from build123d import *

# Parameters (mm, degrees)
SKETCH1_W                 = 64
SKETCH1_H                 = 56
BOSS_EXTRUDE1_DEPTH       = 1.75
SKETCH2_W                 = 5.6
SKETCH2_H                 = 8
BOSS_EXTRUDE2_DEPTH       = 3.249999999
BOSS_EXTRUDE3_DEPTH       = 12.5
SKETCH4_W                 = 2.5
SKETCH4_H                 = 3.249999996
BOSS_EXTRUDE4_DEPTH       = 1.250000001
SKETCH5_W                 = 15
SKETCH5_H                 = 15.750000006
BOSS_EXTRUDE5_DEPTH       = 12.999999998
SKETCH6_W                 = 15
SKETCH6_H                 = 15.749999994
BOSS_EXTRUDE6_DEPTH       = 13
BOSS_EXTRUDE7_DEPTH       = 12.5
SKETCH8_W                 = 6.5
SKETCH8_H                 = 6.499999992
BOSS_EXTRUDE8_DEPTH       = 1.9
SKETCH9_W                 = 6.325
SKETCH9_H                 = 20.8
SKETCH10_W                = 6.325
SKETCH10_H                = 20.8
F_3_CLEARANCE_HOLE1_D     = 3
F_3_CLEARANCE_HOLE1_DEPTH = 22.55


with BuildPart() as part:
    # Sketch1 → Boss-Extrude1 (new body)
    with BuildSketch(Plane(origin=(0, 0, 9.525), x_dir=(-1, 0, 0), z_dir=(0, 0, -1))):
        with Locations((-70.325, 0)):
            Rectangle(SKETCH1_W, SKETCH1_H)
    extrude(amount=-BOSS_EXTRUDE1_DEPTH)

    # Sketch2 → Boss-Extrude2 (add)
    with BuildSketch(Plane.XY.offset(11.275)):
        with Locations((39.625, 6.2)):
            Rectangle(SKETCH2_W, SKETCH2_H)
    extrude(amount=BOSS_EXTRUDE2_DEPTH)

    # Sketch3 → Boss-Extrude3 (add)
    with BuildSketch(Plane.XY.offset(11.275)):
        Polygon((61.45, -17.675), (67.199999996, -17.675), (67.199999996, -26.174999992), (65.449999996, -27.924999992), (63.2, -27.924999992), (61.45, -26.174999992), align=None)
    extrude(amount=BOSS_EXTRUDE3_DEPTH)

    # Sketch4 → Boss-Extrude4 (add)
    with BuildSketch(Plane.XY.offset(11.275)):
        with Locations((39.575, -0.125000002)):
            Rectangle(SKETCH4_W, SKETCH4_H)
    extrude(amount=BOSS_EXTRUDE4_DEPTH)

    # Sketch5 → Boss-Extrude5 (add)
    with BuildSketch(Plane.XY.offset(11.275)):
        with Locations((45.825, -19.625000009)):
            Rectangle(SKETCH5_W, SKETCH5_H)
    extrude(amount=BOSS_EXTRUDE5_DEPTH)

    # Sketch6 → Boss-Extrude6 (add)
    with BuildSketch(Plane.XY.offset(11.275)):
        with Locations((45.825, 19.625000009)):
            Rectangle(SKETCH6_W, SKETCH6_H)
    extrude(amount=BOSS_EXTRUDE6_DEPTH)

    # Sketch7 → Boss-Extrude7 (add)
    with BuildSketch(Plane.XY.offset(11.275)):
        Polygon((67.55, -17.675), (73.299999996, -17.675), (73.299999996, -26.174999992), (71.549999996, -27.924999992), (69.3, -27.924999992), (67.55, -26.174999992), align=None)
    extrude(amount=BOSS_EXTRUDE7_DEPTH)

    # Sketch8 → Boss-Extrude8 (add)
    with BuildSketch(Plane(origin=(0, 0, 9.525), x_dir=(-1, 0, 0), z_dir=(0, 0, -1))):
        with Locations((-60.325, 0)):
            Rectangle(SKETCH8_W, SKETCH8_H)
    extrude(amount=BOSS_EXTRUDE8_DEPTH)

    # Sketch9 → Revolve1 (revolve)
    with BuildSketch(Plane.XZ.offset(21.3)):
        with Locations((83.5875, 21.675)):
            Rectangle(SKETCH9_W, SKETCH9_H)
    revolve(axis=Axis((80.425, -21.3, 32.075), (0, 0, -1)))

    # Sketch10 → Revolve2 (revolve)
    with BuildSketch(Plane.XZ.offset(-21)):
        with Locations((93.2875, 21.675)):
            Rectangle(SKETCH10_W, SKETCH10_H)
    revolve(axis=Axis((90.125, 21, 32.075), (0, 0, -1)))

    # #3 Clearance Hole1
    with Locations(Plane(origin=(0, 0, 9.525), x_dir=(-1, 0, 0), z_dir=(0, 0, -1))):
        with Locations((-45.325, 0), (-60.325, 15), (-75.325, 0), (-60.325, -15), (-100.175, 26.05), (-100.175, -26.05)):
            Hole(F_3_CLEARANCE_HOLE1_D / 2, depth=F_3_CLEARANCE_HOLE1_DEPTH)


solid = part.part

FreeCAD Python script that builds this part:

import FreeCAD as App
import Part
import Sketcher

V = App.Vector
Q = App.Units.Quantity

doc = App.newDocument("Part")
body = doc.addObject("PartDesign::Body", "Body")

# Sketch on XY plane
sketch1 = body.newObject("Sketcher::SketchObject", "Sketch")
sketch1.AttachmentSupport = (doc.getObject("XY_Plane"), [""])
sketch1.MapMode = "FlatFace"
sketch1.AttachmentOffset = App.Placement(V(0, 0, 9.525), App.Rotation())
sketch1.addGeometry(Part.LineSegment(V(102, 28, 0), V(102, -28, 0)), False)
sketch1.addGeometry(Part.LineSegment(V(102, -28, 0), V(38, -28, 0)), False)
sketch1.addGeometry(Part.LineSegment(V(38, -28, 0), V(38, 28, 0)), False)
sketch1.addGeometry(Part.LineSegment(V(38, 28, 0), V(102, 28, 0)), False)
sketch1.addConstraint(Sketcher.Constraint("Coincident", 0, 2, 1, 1))
sketch1.addConstraint(Sketcher.Constraint("Coincident", 1, 2, 2, 1))
sketch1.addConstraint(Sketcher.Constraint("Coincident", 2, 2, 3, 1))
sketch1.addConstraint(Sketcher.Constraint("Coincident", 3, 2, 0, 1))
sketch1.addConstraint(Sketcher.Constraint("Vertical", 0))
sketch1.addConstraint(Sketcher.Constraint("Horizontal", 1))
sketch1.addConstraint(Sketcher.Constraint("Vertical", 2))
sketch1.addConstraint(Sketcher.Constraint("Horizontal", 3))
sketch1.addConstraint(Sketcher.Constraint("DistanceX", 1, 2, 1, 1, Q("64 mm")))
sketch1.addConstraint(Sketcher.Constraint("DistanceY", 0, 2, 0, 1, Q("56 mm")))
sketch1.addConstraint(Sketcher.Constraint("DistanceY", 0, 2, -1, 1, Q("28 mm")))
sketch1.addConstraint(Sketcher.Constraint("DistanceX", -1, 1, 0, 2, Q("102.325 mm")))
pad1 = body.newObject("PartDesign::Pad", "Pad")
pad1.Profile = sketch1
pad1.Length = 1.75

# Sketch on XY plane
sketch2 = body.newObject("Sketcher::SketchObject", "Sketch001")
sketch2.AttachmentSupport = (doc.getObject("XY_Plane"), [""])
sketch2.MapMode = "FlatFace"
sketch2.AttachmentOffset = App.Placement(V(0, 0, 11.275), App.Rotation())
sketch2.addGeometry(Part.LineSegment(V(37, 10, 0), V(37, 2, 0)), False)
sketch2.addGeometry(Part.LineSegment(V(37, 2, 0), V(42, 2, 0)), False)
sketch2.addGeometry(Part.LineSegment(V(42, 2, 0), V(42, 10, 0)), False)
sketch2.addGeometry(Part.LineSegment(V(42, 10, 0), V(37, 10, 0)), False)
sketch2.addConstraint(Sketcher.Constraint("Coincident", 0, 2, 1, 1))
sketch2.addConstraint(Sketcher.Constraint("Coincident", 1, 2, 2, 1))
sketch2.addConstraint(Sketcher.Constraint("Coincident", 2, 2, 3, 1))
sketch2.addConstraint(Sketcher.Constraint("Coincident", 3, 2, 0, 1))
sketch2.addConstraint(Sketcher.Constraint("Vertical", 0))
sketch2.addConstraint(Sketcher.Constraint("Horizontal", 1))
sketch2.addConstraint(Sketcher.Constraint("Vertical", 2))
sketch2.addConstraint(Sketcher.Constraint("Horizontal", 3))
sketch2.addConstraint(Sketcher.Constraint("DistanceY", 0, 2, 0, 1, Q("8 mm")))
sketch2.addConstraint(Sketcher.Constraint("DistanceX", 1, 1, 1, 2, Q("5.6 mm")))
sketch2.addConstraint(Sketcher.Constraint("DistanceY", -1, 1, 0, 2, Q("2.2 mm")))
sketch2.addConstraint(Sketcher.Constraint("DistanceX", -1, 1, 0, 2, Q("36.825 mm")))
pad2 = body.newObject("PartDesign::Pad", "Pad001")
pad2.Profile = sketch2
pad2.Length = 3.25

# Sketch on XY plane
sketch3 = body.newObject("Sketcher::SketchObject", "Sketch002")
sketch3.AttachmentSupport = (doc.getObject("XY_Plane"), [""])
sketch3.MapMode = "FlatFace"
sketch3.AttachmentOffset = App.Placement(V(0, 0, 11.275), App.Rotation())
sketch3.addGeometry(Part.LineSegment(V(67.2, -17.7, 0), V(61.5, -17.7, 0)), False)
sketch3.addGeometry(Part.LineSegment(V(61.5, -17.7, 0), V(61.5, -26.2, 0)), False)
sketch3.addGeometry(Part.LineSegment(V(61.5, -26.2, 0), V(63.2, -27.9, 0)), False)
sketch3.addGeometry(Part.LineSegment(V(63.2, -27.9, 0), V(65.4, -27.9, 0)), False)
sketch3.addGeometry(Part.LineSegment(V(65.4, -27.9, 0), V(67.2, -26.2, 0)), False)
sketch3.addGeometry(Part.LineSegment(V(67.2, -26.2, 0), V(67.2, -17.7, 0)), False)
sketch3.addConstraint(Sketcher.Constraint("Coincident", 0, 2, 1, 1))
sketch3.addConstraint(Sketcher.Constraint("Coincident", 1, 2, 2, 1))
sketch3.addConstraint(Sketcher.Constraint("Coincident", 2, 2, 3, 1))
sketch3.addConstraint(Sketcher.Constraint("Coincident", 3, 2, 4, 1))
sketch3.addConstraint(Sketcher.Constraint("Coincident", 4, 2, 5, 1))
sketch3.addConstraint(Sketcher.Constraint("Coincident", 5, 2, 0, 1))
sketch3.addConstraint(Sketcher.Constraint("Horizontal", 0))
sketch3.addConstraint(Sketcher.Constraint("Vertical", 1))
sketch3.addConstraint(Sketcher.Constraint("Horizontal", 3))
sketch3.addConstraint(Sketcher.Constraint("Vertical", 5))
sketch3.addConstraint(Sketcher.Constraint("Perpendicular", 2, 4))
sketch3.addConstraint(Sketcher.Constraint("Horizontal", 1, 2, 4, 2))
sketch3.addConstraint(Sketcher.Constraint("Equal", 2, 4))
sketch3.addConstraint(Sketcher.Constraint("DistanceY", 1, 2, 1, 1, Q("8.5 mm")))
sketch3.addConstraint(Sketcher.Constraint("DistanceX", 1, 2, 3, 2, Q("4 mm")))
sketch3.addConstraint(Sketcher.Constraint("DistanceX", 0, 2, 0, 1, Q("5.75 mm")))
sketch3.addConstraint(Sketcher.Constraint("DistanceX", -1, 1, 2, 2, Q("63.2 mm")))
sketch3.addConstraint(Sketcher.Constraint("DistanceY", 0, 2, -1, 1, Q("17.675 mm")))
pad3 = body.newObject("PartDesign::Pad", "Pad002")
pad3.Profile = sketch3
pad3.Length = 12.5

# Sketch on XY plane
sketch4 = body.newObject("Sketcher::SketchObject", "Sketch003")
sketch4.AttachmentSupport = (doc.getObject("XY_Plane"), [""])
sketch4.MapMode = "FlatFace"
sketch4.AttachmentOffset = App.Placement(V(0, 0, 11.275), App.Rotation())
sketch4.addGeometry(Part.LineSegment(V(38.3, 1.5, 0), V(38.3, -1.8, 0)), False)
sketch4.addGeometry(Part.LineSegment(V(38.3, -1.8, 0), V(40.8, -1.8, 0)), False)
sketch4.addGeometry(Part.LineSegment(V(40.8, -1.8, 0), V(40.8, 1.5, 0)), False)
sketch4.addGeometry(Part.LineSegment(V(40.8, 1.5, 0), V(38.3, 1.5, 0)), False)
sketch4.addConstraint(Sketcher.Constraint("Coincident", 0, 2, 1, 1))
sketch4.addConstraint(Sketcher.Constraint("Coincident", 1, 2, 2, 1))
sketch4.addConstraint(Sketcher.Constraint("Coincident", 2, 2, 3, 1))
sketch4.addConstraint(Sketcher.Constraint("Coincident", 3, 2, 0, 1))
sketch4.addConstraint(Sketcher.Constraint("Vertical", 0))
sketch4.addConstraint(Sketcher.Constraint("Horizontal", 1))
sketch4.addConstraint(Sketcher.Constraint("Vertical", 2))
sketch4.addConstraint(Sketcher.Constraint("Horizontal", 3))
sketch4.addConstraint(Sketcher.Constraint("DistanceX", 1, 1, 1, 2, Q("2.5 mm")))
sketch4.addConstraint(Sketcher.Constraint("DistanceY", 0, 2, 0, 1, Q("3.25 mm")))
sketch4.addConstraint(Sketcher.Constraint("DistanceY", -1, 1, 2, 2, Q("1.5 mm")))
sketch4.addConstraint(Sketcher.Constraint("DistanceX", -1, 1, 0, 2, Q("38.325 mm")))
pad4 = body.newObject("PartDesign::Pad", "Pad003")
pad4.Profile = sketch4
pad4.Length = 1.25

# Sketch on XY plane
sketch5 = body.newObject("Sketcher::SketchObject", "Sketch004")
sketch5.AttachmentSupport = (doc.getObject("XY_Plane"), [""])
sketch5.MapMode = "FlatFace"
sketch5.AttachmentOffset = App.Placement(V(0, 0, 11.275), App.Rotation())
sketch5.addGeometry(Part.LineSegment(V(38, -12, 0), V(38, -28, 0)), False)
sketch5.addGeometry(Part.LineSegment(V(38, -28, 0), V(53, -28, 0)), False)
sketch5.addGeometry(Part.LineSegment(V(53, -28, 0), V(53, -12, 0)), False)
sketch5.addGeometry(Part.LineSegment(V(53, -12, 0), V(38, -12, 0)), False)
sketch5.addConstraint(Sketcher.Constraint("Coincident", 0, 2, 1, 1))
sketch5.addConstraint(Sketcher.Constraint("Coincident", 1, 2, 2, 1))
sketch5.addConstraint(Sketcher.Constraint("Coincident", 2, 2, 3, 1))
sketch5.addConstraint(Sketcher.Constraint("Coincident", 3, 2, 0, 1))
sketch5.addConstraint(Sketcher.Constraint("Vertical", 0))
sketch5.addConstraint(Sketcher.Constraint("Horizontal", 1))
sketch5.addConstraint(Sketcher.Constraint("Vertical", 2))
sketch5.addConstraint(Sketcher.Constraint("Horizontal", 3))
sketch5.addConstraint(Sketcher.Constraint("DistanceX", 1, 1, 1, 2, Q("15 mm")))
sketch5.addConstraint(Sketcher.Constraint("DistanceY", 0, 2, 0, 1, Q("15.75 mm")))
sketch5.addConstraint(Sketcher.Constraint("DistanceY", 0, 2, -1, 1, Q("27.5 mm")))
sketch5.addConstraint(Sketcher.Constraint("DistanceX", -1, 1, 0, 2, Q("38.325 mm")))
pad5 = body.newObject("PartDesign::Pad", "Pad004")
pad5.Profile = sketch5
pad5.Length = 13

# Sketch on XY plane
sketch6 = body.newObject("Sketcher::SketchObject", "Sketch005")
sketch6.AttachmentSupport = (doc.getObject("XY_Plane"), [""])
sketch6.MapMode = "FlatFace"
sketch6.AttachmentOffset = App.Placement(V(0, 0, 11.275), App.Rotation())
sketch6.addGeometry(Part.LineSegment(V(38, 28, 0), V(38, 12, 0)), False)
sketch6.addGeometry(Part.LineSegment(V(38, 12, 0), V(53, 12, 0)), False)
sketch6.addGeometry(Part.LineSegment(V(53, 12, 0), V(53, 28, 0)), False)
sketch6.addGeometry(Part.LineSegment(V(53, 28, 0), V(38, 28, 0)), False)
sketch6.addConstraint(Sketcher.Constraint("Coincident", 0, 2, 1, 1))
sketch6.addConstraint(Sketcher.Constraint("Coincident", 1, 2, 2, 1))
sketch6.addConstraint(Sketcher.Constraint("Coincident", 2, 2, 3, 1))
sketch6.addConstraint(Sketcher.Constraint("Coincident", 3, 2, 0, 1))
sketch6.addConstraint(Sketcher.Constraint("Vertical", 0))
sketch6.addConstraint(Sketcher.Constraint("Horizontal", 1))
sketch6.addConstraint(Sketcher.Constraint("Vertical", 2))
sketch6.addConstraint(Sketcher.Constraint("Horizontal", 3))
sketch6.addConstraint(Sketcher.Constraint("DistanceX", 1, 1, 1, 2, Q("15 mm")))
sketch6.addConstraint(Sketcher.Constraint("DistanceY", 0, 2, 0, 1, Q("15.75 mm")))
sketch6.addConstraint(Sketcher.Constraint("DistanceY", -1, 1, 2, 2, Q("27.5 mm")))
sketch6.addConstraint(Sketcher.Constraint("DistanceX", -1, 1, 0, 2, Q("38.325 mm")))
pad6 = body.newObject("PartDesign::Pad", "Pad005")
pad6.Profile = sketch6
pad6.Length = 13

# Sketch on XY plane
sketch7 = body.newObject("Sketcher::SketchObject", "Sketch006")
sketch7.AttachmentSupport = (doc.getObject("XY_Plane"), [""])
sketch7.MapMode = "FlatFace"
sketch7.AttachmentOffset = App.Placement(V(0, 0, 11.275), App.Rotation())
sketch7.addGeometry(Part.LineSegment(V(73.3, -17.7, 0), V(67.5, -17.7, 0)), False)
sketch7.addGeometry(Part.LineSegment(V(67.5, -17.7, 0), V(67.5, -26.2, 0)), False)
sketch7.addGeometry(Part.LineSegment(V(67.5, -26.2, 0), V(69.3, -27.9, 0)), False)
sketch7.addGeometry(Part.LineSegment(V(69.3, -27.9, 0), V(71.5, -27.9, 0)), False)
sketch7.addGeometry(Part.LineSegment(V(71.5, -27.9, 0), V(73.3, -26.2, 0)), False)
sketch7.addGeometry(Part.LineSegment(V(73.3, -26.2, 0), V(73.3, -17.7, 0)), False)
sketch7.addConstraint(Sketcher.Constraint("Coincident", 0, 2, 1, 1))
sketch7.addConstraint(Sketcher.Constraint("Coincident", 1, 2, 2, 1))
sketch7.addConstraint(Sketcher.Constraint("Coincident", 2, 2, 3, 1))
sketch7.addConstraint(Sketcher.Constraint("Coincident", 3, 2, 4, 1))
sketch7.addConstraint(Sketcher.Constraint("Coincident", 4, 2, 5, 1))
sketch7.addConstraint(Sketcher.Constraint("Coincident", 5, 2, 0, 1))
sketch7.addConstraint(Sketcher.Constraint("Horizontal", 0))
sketch7.addConstraint(Sketcher.Constraint("Vertical", 1))
sketch7.addConstraint(Sketcher.Constraint("Horizontal", 3))
sketch7.addConstraint(Sketcher.Constraint("Vertical", 5))
sketch7.addConstraint(Sketcher.Constraint("Perpendicular", 2, 4))
sketch7.addConstraint(Sketcher.Constraint("Horizontal", 1, 2, 4, 2))
sketch7.addConstraint(Sketcher.Constraint("Equal", 2, 4))
sketch7.addConstraint(Sketcher.Constraint("DistanceY", 1, 2, 1, 1, Q("8.5 mm")))
sketch7.addConstraint(Sketcher.Constraint("DistanceX", 1, 2, 3, 2, Q("4 mm")))
sketch7.addConstraint(Sketcher.Constraint("DistanceX", 0, 2, 0, 1, Q("5.75 mm")))
sketch7.addConstraint(Sketcher.Constraint("DistanceX", -1, 1, 2, 2, Q("69.3 mm")))
sketch7.addConstraint(Sketcher.Constraint("DistanceY", 0, 2, -1, 1, Q("17.675 mm")))
pad7 = body.newObject("PartDesign::Pad", "Pad006")
pad7.Profile = sketch7
pad7.Length = 12.5

# Sketch on XY plane
sketch8 = body.newObject("Sketcher::SketchObject", "Sketch007")
sketch8.AttachmentSupport = (doc.getObject("XY_Plane"), [""])
sketch8.MapMode = "FlatFace"
sketch8.AttachmentOffset = App.Placement(V(0, 0, 9.525), App.Rotation())
sketch8.addGeometry(Part.LineSegment(V(64, 3, 0), V(64, -3, 0)), False)
sketch8.addGeometry(Part.LineSegment(V(64, -3, 0), V(57, -3, 0)), False)
sketch8.addGeometry(Part.LineSegment(V(57, -3, 0), V(57, 3, 0)), False)
sketch8.addGeometry(Part.LineSegment(V(57, 3, 0), V(64, 3, 0)), False)
sketch8.addConstraint(Sketcher.Constraint("Coincident", 0, 2, 1, 1))
sketch8.addConstraint(Sketcher.Constraint("Coincident", 1, 2, 2, 1))
sketch8.addConstraint(Sketcher.Constraint("Coincident", 2, 2, 3, 1))
sketch8.addConstraint(Sketcher.Constraint("Coincident", 3, 2, 0, 1))
sketch8.addConstraint(Sketcher.Constraint("Vertical", 0))
sketch8.addConstraint(Sketcher.Constraint("Horizontal", 1))
sketch8.addConstraint(Sketcher.Constraint("Vertical", 2))
sketch8.addConstraint(Sketcher.Constraint("Horizontal", 3))
sketch8.addConstraint(Sketcher.Constraint("Equal", 3, 0))
sketch8.addConstraint(Sketcher.Constraint("DistanceX", 1, 2, 1, 1, Q("6.5 mm")))
sketch8.addConstraint(Sketcher.Constraint("DistanceY", 0, 2, -1, 1, Q("3.25 mm")))
sketch8.addConstraint(Sketcher.Constraint("DistanceX", -1, 1, 0, 2, Q("63.575 mm")))
pad8 = body.newObject("PartDesign::Pad", "Pad007")
pad8.Profile = sketch8
pad8.Length = 1.9
pad8.Reversed = True

# Sketch on XZ plane
sketch9 = body.newObject("Sketcher::SketchObject", "Sketch008")
sketch9.AttachmentSupport = (doc.getObject("XZ_Plane"), [""])
sketch9.MapMode = "FlatFace"
sketch9.AttachmentOffset = App.Placement(V(0, 0, 21.3), App.Rotation())
sketch9.addGeometry(Part.LineSegment(V(80, 32, 0), V(80, 11, 0)), False)
sketch9.addGeometry(Part.LineSegment(V(80, 11, 0), V(87, 11, 0)), False)
sketch9.addGeometry(Part.LineSegment(V(87, 11, 0), V(87, 32, 0)), False)
sketch9.addGeometry(Part.LineSegment(V(87, 32, 0), V(80, 32, 0)), False)
sketch9.addGeometry(Part.LineSegment(V(80, 32, 0), V(80, 11, 0)), True)  # axis
sketch9.addConstraint(Sketcher.Constraint("Coincident", 0, 2, 1, 1))
sketch9.addConstraint(Sketcher.Constraint("Coincident", 1, 2, 2, 1))
sketch9.addConstraint(Sketcher.Constraint("Coincident", 2, 2, 3, 1))
sketch9.addConstraint(Sketcher.Constraint("Coincident", 3, 2, 0, 1))
sketch9.addConstraint(Sketcher.Constraint("Vertical", 0))
sketch9.addConstraint(Sketcher.Constraint("Horizontal", 1))
sketch9.addConstraint(Sketcher.Constraint("Vertical", 2))
sketch9.addConstraint(Sketcher.Constraint("Horizontal", 3))
sketch9.addConstraint(Sketcher.Constraint("Vertical", 4))
sketch9.addConstraint(Sketcher.Constraint("Coincident", 4, 1, 3, 2))
sketch9.addConstraint(Sketcher.Constraint("Horizontal", 1, 2, 4, 2))
sketch9.addConstraint(Sketcher.Constraint("DistanceY", 0, 2, 0, 1, Q("20.8 mm")))
sketch9.addConstraint(Sketcher.Constraint("DistanceX", 1, 1, 1, 2, Q("6.325 mm")))
sketch9.addConstraint(Sketcher.Constraint("DistanceX", -1, 1, 1, 2, Q("86.75 mm")))
sketch9.addConstraint(Sketcher.Constraint("DistanceY", -1, 1, 0, 2, Q("11.275 mm")))
revolution = body.newObject("PartDesign::Revolution", "Revolution")
revolution.Profile = sketch9
revolution.ReferenceAxis = (sketch9, ["Axis0"])
revolution.Angle = 360

# Sketch on XZ plane
sketch10 = body.newObject("Sketcher::SketchObject", "Sketch009")
sketch10.AttachmentSupport = (doc.getObject("XZ_Plane"), [""])
sketch10.MapMode = "FlatFace"
sketch10.AttachmentOffset = App.Placement(V(0, 0, -21), App.Rotation())
sketch10.addGeometry(Part.LineSegment(V(90, 32, 0), V(90, 11, 0)), False)
sketch10.addGeometry(Part.LineSegment(V(90, 11, 0), V(96, 11, 0)), False)
sketch10.addGeometry(Part.LineSegment(V(96, 11, 0), V(96, 32, 0)), False)
sketch10.addGeometry(Part.LineSegment(V(96, 32, 0), V(90, 32, 0)), False)
sketch10.addGeometry(Part.LineSegment(V(90, 32, 0), V(90, 11, 0)), True)  # axis
sketch10.addConstraint(Sketcher.Constraint("Coincident", 0, 2, 1, 1))
sketch10.addConstraint(Sketcher.Constraint("Coincident", 1, 2, 2, 1))
sketch10.addConstraint(Sketcher.Constraint("Coincident", 2, 2, 3, 1))
sketch10.addConstraint(Sketcher.Constraint("Coincident", 3, 2, 0, 1))
sketch10.addConstraint(Sketcher.Constraint("Vertical", 0))
sketch10.addConstraint(Sketcher.Constraint("Horizontal", 1))
sketch10.addConstraint(Sketcher.Constraint("Vertical", 2))
sketch10.addConstraint(Sketcher.Constraint("Horizontal", 3))
sketch10.addConstraint(Sketcher.Constraint("Vertical", 4))
sketch10.addConstraint(Sketcher.Constraint("Coincident", 4, 1, 3, 2))
sketch10.addConstraint(Sketcher.Constraint("Horizontal", 1, 2, 4, 2))
sketch10.addConstraint(Sketcher.Constraint("DistanceY", 0, 2, 0, 1, Q("20.8 mm")))
sketch10.addConstraint(Sketcher.Constraint("DistanceX", 1, 1, 1, 2, Q("6.325 mm")))
sketch10.addConstraint(Sketcher.Constraint("DistanceX", -1, 1, 1, 2, Q("96.45 mm")))
sketch10.addConstraint(Sketcher.Constraint("DistanceY", -1, 1, 0, 2, Q("11.275 mm")))
revolution2 = body.newObject("PartDesign::Revolution", "Revolution001")
revolution2.Profile = sketch10
revolution2.ReferenceAxis = (sketch10, ["Axis0"])
revolution2.Angle = 360

# Sketch on XY plane
sketch11 = body.newObject("Sketcher::SketchObject", "Sketch010")
sketch11.AttachmentSupport = (doc.getObject("XY_Plane"), [""])
sketch11.MapMode = "FlatFace"
sketch11.AttachmentOffset = App.Placement(V(0, 0, 9.525), App.Rotation())
sketch11.addGeometry(Part.Circle(V(45.3, 0, 0), V(0, 0, 1), 1.5), False)
sketch11.addGeometry(Part.Circle(V(60.3, 15, 0), V(0, 0, 1), 1.5), False)
sketch11.addGeometry(Part.Circle(V(75.3, 0, 0), V(0, 0, 1), 1.5), False)
sketch11.addGeometry(Part.Circle(V(60.3, -15, 0), V(0, 0, 1), 1.5), False)
sketch11.addGeometry(Part.Circle(V(100.2, 26.1, 0), V(0, 0, 1), 1.5), False)
sketch11.addGeometry(Part.Circle(V(100.2, -26.1, 0), V(0, 0, 1), 1.5), False)
sketch11.addConstraint(Sketcher.Constraint("Equal", 0, 1))
sketch11.addConstraint(Sketcher.Constraint("Equal", 1, 2))
sketch11.addConstraint(Sketcher.Constraint("Equal", 2, 3))
sketch11.addConstraint(Sketcher.Constraint("Equal", 3, 4))
sketch11.addConstraint(Sketcher.Constraint("Equal", 4, 5))
sketch11.addConstraint(Sketcher.Constraint("Symmetric", 1, 3, 3, 3, -1))
sketch11.addConstraint(Sketcher.Constraint("Symmetric", 4, 3, 5, 3, -1))
sketch11.addConstraint(Sketcher.Constraint("PointOnObject", 0, 3, -1))
sketch11.addConstraint(Sketcher.Constraint("PointOnObject", 2, 3, -1))
sketch11.addConstraint(Sketcher.Constraint("Diameter", 0, Q("3 mm")))
sketch11.addConstraint(Sketcher.Constraint("DistanceY", -1, 1, 1, 3, Q("15 mm")))
sketch11.addConstraint(Sketcher.Constraint("DistanceX", 0, 3, 1, 3, Q("15 mm")))
sketch11.addConstraint(Sketcher.Constraint("DistanceX", 1, 3, 2, 3, Q("15 mm")))
sketch11.addConstraint(Sketcher.Constraint("DistanceY", 5, 3, 4, 3, Q("52.1 mm")))
sketch11.addConstraint(Sketcher.Constraint("DistanceX", 2, 3, 4, 3, Q("24.85 mm")))
sketch11.addConstraint(Sketcher.Constraint("DistanceX", -1, 1, 0, 3, Q("45.325 mm")))
doc.recompute()
hole = body.newObject("PartDesign::Hole", "Hole")
hole.Profile = sketch11
hole.ThreadType = "None"
hole.Diameter = 3
hole.DepthType = "Dimension"
hole.Depth = 22.55
hole.DrillPoint = "Flat"
hole.Reversed = True

doc.recompute()
